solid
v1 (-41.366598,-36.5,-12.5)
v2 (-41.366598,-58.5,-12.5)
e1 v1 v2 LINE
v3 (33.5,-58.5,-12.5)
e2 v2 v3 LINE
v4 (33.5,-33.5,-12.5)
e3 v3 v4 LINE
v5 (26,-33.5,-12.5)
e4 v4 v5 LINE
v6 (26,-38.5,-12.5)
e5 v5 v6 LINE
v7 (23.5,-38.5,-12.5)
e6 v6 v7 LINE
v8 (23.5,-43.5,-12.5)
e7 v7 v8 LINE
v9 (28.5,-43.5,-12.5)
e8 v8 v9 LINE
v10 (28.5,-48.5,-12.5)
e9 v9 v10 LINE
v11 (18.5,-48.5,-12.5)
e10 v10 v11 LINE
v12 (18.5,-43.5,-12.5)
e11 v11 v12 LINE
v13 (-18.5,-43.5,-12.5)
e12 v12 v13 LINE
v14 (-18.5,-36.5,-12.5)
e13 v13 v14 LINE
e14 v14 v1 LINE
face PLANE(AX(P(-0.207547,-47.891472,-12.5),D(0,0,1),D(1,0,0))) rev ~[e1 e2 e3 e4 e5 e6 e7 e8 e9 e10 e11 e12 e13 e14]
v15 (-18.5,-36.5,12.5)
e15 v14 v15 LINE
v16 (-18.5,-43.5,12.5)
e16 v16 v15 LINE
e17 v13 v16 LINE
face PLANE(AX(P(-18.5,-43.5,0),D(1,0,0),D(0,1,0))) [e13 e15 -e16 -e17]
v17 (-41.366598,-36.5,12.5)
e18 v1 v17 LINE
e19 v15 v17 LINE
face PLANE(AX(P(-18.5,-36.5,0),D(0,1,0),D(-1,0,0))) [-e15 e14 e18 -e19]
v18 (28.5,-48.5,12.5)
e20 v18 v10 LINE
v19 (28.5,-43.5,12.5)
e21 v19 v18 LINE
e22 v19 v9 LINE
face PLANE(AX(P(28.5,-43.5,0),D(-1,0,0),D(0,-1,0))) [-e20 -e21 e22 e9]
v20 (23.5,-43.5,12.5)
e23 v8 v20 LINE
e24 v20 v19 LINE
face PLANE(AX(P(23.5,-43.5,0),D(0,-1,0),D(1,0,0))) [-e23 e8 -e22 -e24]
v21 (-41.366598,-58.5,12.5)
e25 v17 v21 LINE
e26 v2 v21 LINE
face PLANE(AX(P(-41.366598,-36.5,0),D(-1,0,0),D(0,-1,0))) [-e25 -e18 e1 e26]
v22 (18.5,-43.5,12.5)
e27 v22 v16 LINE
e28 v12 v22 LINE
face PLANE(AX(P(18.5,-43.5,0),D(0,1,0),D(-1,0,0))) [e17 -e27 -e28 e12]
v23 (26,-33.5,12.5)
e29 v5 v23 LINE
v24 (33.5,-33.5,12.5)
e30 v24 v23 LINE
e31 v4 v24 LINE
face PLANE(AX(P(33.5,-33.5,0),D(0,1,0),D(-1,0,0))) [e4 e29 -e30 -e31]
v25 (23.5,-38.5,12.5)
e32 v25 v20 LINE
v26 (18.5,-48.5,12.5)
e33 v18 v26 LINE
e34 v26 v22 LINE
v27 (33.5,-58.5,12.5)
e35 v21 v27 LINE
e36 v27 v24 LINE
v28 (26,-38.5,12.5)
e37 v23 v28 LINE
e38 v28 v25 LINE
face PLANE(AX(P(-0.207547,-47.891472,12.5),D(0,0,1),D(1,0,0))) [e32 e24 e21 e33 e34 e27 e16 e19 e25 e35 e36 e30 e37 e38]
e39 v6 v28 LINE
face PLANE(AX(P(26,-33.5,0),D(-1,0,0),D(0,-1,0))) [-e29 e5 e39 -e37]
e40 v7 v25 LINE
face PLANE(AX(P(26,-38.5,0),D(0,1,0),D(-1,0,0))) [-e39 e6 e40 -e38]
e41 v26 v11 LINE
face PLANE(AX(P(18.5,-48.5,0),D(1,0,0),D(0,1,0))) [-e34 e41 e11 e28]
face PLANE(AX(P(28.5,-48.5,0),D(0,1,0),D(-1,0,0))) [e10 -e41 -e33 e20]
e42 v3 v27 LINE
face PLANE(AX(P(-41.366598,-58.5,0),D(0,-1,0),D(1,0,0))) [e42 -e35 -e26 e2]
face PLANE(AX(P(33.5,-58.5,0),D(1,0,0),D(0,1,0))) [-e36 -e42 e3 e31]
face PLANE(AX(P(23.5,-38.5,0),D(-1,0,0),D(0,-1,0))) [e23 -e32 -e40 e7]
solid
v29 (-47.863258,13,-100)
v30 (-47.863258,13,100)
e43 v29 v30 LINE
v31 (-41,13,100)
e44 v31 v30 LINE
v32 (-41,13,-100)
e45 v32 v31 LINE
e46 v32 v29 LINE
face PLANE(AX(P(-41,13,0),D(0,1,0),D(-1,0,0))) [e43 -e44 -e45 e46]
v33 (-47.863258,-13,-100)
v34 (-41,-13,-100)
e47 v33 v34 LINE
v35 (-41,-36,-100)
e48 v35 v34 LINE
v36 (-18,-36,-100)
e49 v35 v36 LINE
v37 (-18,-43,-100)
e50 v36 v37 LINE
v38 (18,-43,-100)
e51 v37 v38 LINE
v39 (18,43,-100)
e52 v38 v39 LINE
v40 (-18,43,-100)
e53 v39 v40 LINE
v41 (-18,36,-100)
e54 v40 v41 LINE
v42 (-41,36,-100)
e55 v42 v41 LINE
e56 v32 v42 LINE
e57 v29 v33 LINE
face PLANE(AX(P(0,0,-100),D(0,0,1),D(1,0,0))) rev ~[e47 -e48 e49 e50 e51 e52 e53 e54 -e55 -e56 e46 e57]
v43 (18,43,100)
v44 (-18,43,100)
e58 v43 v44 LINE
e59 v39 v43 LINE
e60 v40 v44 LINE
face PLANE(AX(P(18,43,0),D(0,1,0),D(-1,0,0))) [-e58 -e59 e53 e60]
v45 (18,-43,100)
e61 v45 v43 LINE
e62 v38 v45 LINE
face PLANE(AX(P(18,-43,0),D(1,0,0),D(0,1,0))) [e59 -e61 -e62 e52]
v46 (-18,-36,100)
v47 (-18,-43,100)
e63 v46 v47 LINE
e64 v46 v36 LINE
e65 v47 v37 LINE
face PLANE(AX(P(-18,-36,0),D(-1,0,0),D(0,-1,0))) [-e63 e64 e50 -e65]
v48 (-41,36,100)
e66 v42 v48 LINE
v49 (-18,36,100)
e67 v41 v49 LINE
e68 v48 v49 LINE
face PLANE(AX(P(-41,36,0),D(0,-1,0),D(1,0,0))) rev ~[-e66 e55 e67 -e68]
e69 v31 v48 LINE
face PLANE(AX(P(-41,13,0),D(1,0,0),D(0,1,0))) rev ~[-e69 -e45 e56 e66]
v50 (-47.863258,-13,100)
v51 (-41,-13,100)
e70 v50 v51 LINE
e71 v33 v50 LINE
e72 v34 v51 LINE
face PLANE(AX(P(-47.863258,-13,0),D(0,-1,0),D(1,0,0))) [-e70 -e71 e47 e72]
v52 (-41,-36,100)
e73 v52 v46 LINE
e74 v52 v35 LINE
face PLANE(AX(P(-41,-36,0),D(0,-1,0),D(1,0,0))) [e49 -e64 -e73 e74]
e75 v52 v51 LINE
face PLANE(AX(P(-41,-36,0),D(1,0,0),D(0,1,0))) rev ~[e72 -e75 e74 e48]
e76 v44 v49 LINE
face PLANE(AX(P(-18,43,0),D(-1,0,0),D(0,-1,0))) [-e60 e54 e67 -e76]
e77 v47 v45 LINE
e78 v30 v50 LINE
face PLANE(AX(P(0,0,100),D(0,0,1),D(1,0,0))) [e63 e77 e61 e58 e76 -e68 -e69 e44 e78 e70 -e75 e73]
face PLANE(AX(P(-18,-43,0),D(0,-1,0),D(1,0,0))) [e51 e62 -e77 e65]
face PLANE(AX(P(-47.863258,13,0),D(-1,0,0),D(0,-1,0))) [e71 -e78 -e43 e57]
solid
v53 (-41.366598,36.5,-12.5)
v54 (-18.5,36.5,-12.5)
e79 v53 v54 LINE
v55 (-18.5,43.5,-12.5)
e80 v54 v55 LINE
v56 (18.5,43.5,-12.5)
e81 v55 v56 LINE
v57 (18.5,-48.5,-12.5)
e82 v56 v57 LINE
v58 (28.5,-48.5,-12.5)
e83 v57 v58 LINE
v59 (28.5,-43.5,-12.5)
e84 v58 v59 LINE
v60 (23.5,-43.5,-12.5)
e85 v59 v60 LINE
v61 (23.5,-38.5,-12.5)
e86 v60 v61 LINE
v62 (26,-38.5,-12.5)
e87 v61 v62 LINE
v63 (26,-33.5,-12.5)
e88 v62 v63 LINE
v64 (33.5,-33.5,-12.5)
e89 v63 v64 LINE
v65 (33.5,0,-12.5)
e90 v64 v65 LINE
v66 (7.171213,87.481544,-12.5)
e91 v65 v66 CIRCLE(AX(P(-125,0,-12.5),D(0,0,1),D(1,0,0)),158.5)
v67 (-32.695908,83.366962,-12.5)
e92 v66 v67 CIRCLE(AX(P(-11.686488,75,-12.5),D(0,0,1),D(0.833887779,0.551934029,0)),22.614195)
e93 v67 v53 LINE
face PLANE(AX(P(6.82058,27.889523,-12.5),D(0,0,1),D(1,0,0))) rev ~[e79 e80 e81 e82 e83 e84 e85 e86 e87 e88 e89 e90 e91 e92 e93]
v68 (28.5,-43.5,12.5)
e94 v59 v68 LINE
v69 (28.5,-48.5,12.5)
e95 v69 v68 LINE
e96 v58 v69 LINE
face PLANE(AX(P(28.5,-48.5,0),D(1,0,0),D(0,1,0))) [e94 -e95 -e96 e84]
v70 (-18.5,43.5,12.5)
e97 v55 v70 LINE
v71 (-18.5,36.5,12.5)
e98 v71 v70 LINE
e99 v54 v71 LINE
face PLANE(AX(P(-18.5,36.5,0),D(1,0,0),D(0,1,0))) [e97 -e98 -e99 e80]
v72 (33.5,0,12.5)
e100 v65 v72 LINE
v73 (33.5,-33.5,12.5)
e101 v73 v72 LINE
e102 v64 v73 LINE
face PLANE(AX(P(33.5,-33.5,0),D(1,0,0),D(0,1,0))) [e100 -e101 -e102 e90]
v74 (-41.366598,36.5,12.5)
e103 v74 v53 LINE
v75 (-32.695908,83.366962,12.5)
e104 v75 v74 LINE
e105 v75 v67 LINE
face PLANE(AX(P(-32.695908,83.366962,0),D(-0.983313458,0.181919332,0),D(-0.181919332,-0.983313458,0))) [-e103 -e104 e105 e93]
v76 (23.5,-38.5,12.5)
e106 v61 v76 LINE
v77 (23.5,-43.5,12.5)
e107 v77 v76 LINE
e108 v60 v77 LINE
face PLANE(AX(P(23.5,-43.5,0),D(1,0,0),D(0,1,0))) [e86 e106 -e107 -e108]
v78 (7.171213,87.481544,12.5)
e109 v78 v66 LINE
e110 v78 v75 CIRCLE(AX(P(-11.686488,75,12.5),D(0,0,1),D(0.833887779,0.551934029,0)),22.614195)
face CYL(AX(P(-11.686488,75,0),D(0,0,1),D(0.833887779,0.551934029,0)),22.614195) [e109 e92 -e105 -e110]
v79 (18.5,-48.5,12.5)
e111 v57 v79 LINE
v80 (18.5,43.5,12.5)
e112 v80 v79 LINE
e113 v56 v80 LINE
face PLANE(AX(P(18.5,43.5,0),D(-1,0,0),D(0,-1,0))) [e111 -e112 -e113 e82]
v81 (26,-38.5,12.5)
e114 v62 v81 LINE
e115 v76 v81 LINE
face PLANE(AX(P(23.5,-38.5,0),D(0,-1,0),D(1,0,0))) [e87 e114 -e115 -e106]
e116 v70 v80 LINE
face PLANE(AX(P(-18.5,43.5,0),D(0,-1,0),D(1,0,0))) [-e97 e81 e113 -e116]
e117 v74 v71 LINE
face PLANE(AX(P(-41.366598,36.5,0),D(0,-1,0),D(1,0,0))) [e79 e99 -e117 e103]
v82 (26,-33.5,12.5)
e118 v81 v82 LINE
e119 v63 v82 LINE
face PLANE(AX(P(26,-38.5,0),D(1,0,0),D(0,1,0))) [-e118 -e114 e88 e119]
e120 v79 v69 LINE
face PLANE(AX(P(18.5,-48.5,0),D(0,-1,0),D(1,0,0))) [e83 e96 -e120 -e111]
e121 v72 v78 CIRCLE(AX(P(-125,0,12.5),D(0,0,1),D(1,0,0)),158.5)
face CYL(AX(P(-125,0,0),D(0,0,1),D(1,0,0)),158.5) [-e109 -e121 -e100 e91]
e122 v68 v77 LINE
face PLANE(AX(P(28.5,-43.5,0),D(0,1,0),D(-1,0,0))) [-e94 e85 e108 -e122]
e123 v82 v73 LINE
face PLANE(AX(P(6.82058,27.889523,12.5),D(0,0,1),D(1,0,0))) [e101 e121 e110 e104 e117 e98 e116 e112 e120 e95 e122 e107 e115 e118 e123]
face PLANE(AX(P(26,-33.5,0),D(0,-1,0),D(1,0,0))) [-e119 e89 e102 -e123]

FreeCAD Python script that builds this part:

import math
import FreeCAD as App
import Part
import Sketcher

V = App.Vector
Q = App.Units.Quantity


def add_polygon(sketch, points):
    """Adds a closed chain of lines whose ends are joined by coincident constraints."""
    first, n = sketch.GeometryCount, len(points)
    for a, b in zip(points, points[1:] + points[:1]):
        sketch.addGeometry(Part.LineSegment(App.Vector(*a, 0), App.Vector(*b, 0)), False)
    for i in range(n):
        sketch.addConstraint(Sketcher.Constraint("Coincident", first + i, 2, first + (i + 1) % n, 1))

doc = App.newDocument("Part")
body = doc.addObject("PartDesign::Body", "Body")

# Sketch on XY plane
sketch1 = body.newObject("Sketcher::SketchObject", "Sketch")
sketch1.AttachmentSupport = (doc.getObject("XY_Plane"), [""])
sketch1.MapMode = "FlatFace"
add_polygon(sketch1, [(-18, -43), (18, -43), (18, 43), (-18, 43), (-18, 36), (-41, 36), (-41, 13), (-48, 13), (-48, -13), (-41, -13), (-41, -36), (-18, -36)])  # lines 0-11
sketch1.addConstraint(Sketcher.Constraint("Horizontal", 0))
sketch1.addConstraint(Sketcher.Constraint("Vertical", 1))
sketch1.addConstraint(Sketcher.Constraint("Horizontal", 2))
sketch1.addConstraint(Sketcher.Constraint("Vertical", 3))
sketch1.addConstraint(Sketcher.Constraint("Horizontal", 4))
sketch1.addConstraint(Sketcher.Constraint("Vertical", 5))
sketch1.addConstraint(Sketcher.Constraint("Horizontal", 6))
sketch1.addConstraint(Sketcher.Constraint("Vertical", 7))
sketch1.addConstraint(Sketcher.Constraint("Horizontal", 8))
sketch1.addConstraint(Sketcher.Constraint("Vertical", 9))
sketch1.addConstraint(Sketcher.Constraint("Horizontal", 10))
sketch1.addConstraint(Sketcher.Constraint("Vertical", 11))
sketch1.addConstraint(Sketcher.Constraint("Symmetric", 0, 2, 2, 2, -1, 1))
sketch1.addConstraint(Sketcher.Constraint("Symmetric", 5, 2, 8, 2, -1))
sketch1.addConstraint(Sketcher.Constraint("Symmetric", 3, 2, 10, 2, -1))
sketch1.addConstraint(Sketcher.Constraint("Equal", 10, 5))
sketch1.addConstraint(Sketcher.Constraint("DistanceX", 0, 1, 0, 2, Q("36 mm")))
sketch1.addConstraint(Sketcher.Constraint("DistanceX", 4, 2, 4, 1, Q("23 mm")))
sketch1.addConstraint(Sketcher.Constraint("DistanceY", 1, 1, 1, 2, Q("86 mm")))
sketch1.addConstraint(Sketcher.Constraint("DistanceY", 3, 2, 3, 1, Q("7 mm")))
sketch1.addConstraint(Sketcher.Constraint("DistanceX", 6, 2, 6, 1, Q("6.863258 mm")))
pad1 = body.newObject("PartDesign::Pad", "Pad")
pad1.Profile = sketch1
pad1.Length = 200
pad1.Midplane = True
body2 = doc.addObject("PartDesign::Body", "Body001")

# Sketch on XY plane
sketch2 = body2.newObject("Sketcher::SketchObject", "Sketch001")
sketch2.AttachmentSupport = (doc.getObject("XY_Plane001"), [""])
sketch2.MapMode = "FlatFace"
add_polygon(sketch2, [(18.5, -48.5), (18.5, -43.5), (-18.5, -43.5), (-18.5, -36.5), (-41.4, -36.5), (-41.4, -58.5), (33.5, -58.5), (33.5, -33.5), (26, -33.5), (26, -38.5), (23.5, -38.5), (23.5, -43.5), (28.5, -43.5), (28.5, -48.5)])  # lines 0-13
sketch2.addConstraint(Sketcher.Constraint("Vertical", 0))
sketch2.addConstraint(Sketcher.Constraint("Horizontal", 1))
sketch2.addConstraint(Sketcher.Constraint("Vertical", 2))
sketch2.addConstraint(Sketcher.Constraint("Horizontal", 3))
sketch2.addConstraint(Sketcher.Constraint("Vertical", 4))
sketch2.addConstraint(Sketcher.Constraint("Horizontal", 5))
sketch2.addConstraint(Sketcher.Constraint("Vertical", 6))
sketch2.addConstraint(Sketcher.Constraint("Horizontal", 7))
sketch2.addConstraint(Sketcher.Constraint("Vertical", 8))
sketch2.addConstraint(Sketcher.Constraint("Horizontal", 9))
sketch2.addConstraint(Sketcher.Constraint("Vertical", 10))
sketch2.addConstraint(Sketcher.Constraint("Horizontal", 11))
sketch2.addConstraint(Sketcher.Constraint("Vertical", 12))
sketch2.addConstraint(Sketcher.Constraint("Horizontal", 13))
sketch2.addConstraint(Sketcher.Constraint("Horizontal", 1, 2, 10, 2))
sketch2.addConstraint(Sketcher.Constraint("Equal", 11, 0))
sketch2.addConstraint(Sketcher.Constraint("Equal", 0, 8))
sketch2.addConstraint(Sketcher.Constraint("Equal", 8, 10))
sketch2.addConstraint(Sketcher.Constraint("DistanceX", 1, 2, 1, 1, Q("37 mm")))
sketch2.addConstraint(Sketcher.Constraint("DistanceX", 11, 1, 11, 2, Q("5 mm")))
sketch2.addConstraint(Sketcher.Constraint("DistanceX", 13, 2, 13, 1, Q("10 mm")))
sketch2.addConstraint(Sketcher.Constraint("DistanceY", 2, 1, 2, 2, Q("7 mm")))
sketch2.addConstraint(Sketcher.Constraint("DistanceY", 4, 2, 4, 1, Q("22 mm")))
sketch2.addConstraint(Sketcher.Constraint("DistanceX", 7, 2, 7, 1, Q("7.5 mm")))
sketch2.addConstraint(Sketcher.Constraint("DistanceX", 9, 2, 9, 1, Q("2.5 mm")))
sketch2.addConstraint(Sketcher.Constraint("DistanceX", -1, 1, 7, 2, Q("26 mm")))
sketch2.addConstraint(Sketcher.Constraint("DistanceY", 0, 2, -1, 1, Q("43.5 mm")))
sketch2.addConstraint(Sketcher.Constraint("DistanceX", 3, 2, 3, 1, Q("22.866598 mm")))
pad2 = body2.newObject("PartDesign::Pad", "Pad001")
pad2.Profile = sketch2
pad2.Length = 25
pad2.Midplane = True
body3 = doc.addObject("PartDesign::Body", "Body002")

# Sketch on XY plane
sketch3 = body3.newObject("Sketcher::SketchObject", "Sketch002")
sketch3.AttachmentSupport = (doc.getObject("XY_Plane002"), [""])
sketch3.MapMode = "FlatFace"
sketch3.addGeometry(Part.LineSegment(V(-41.4, 36.5, 0), V(-18.5, 36.5, 0)), False)
sketch3.addGeometry(Part.LineSegment(V(-18.5, 36.5, 0), V(-18.5, 43.5, 0)), False)
sketch3.addGeometry(Part.LineSegment(V(-18.5, 43.5, 0), V(18.5, 43.5, 0)), False)
sketch3.addGeometry(Part.LineSegment(V(18.5, 43.5, 0), V(18.5, -48.5, 0)), False)
sketch3.addGeometry(Part.LineSegment(V(18.5, -48.5, 0), V(28.5, -48.5, 0)), False)
sketch3.addGeometry(Part.LineSegment(V(28.5, -48.5, 0), V(28.5, -43.5, 0)), False)
sketch3.addGeometry(Part.LineSegment(V(28.5, -43.5, 0), V(23.5, -43.5, 0)), False)
sketch3.addGeometry(Part.LineSegment(V(23.5, -43.5, 0), V(23.5, -38.5, 0)), False)
sketch3.addGeometry(Part.LineSegment(V(23.5, -38.5, 0), V(26, -38.5, 0)), False)
sketch3.addGeometry(Part.LineSegment(V(26, -38.5, 0), V(26, -33.5, 0)), False)
sketch3.addGeometry(Part.LineSegment(V(26, -33.5, 0), V(33.5, -33.5, 0)), False)
sketch3.addGeometry(Part.LineSegment(V(33.5, -33.5, 0), V(33.5, 0, 0)), False)
sketch3.addGeometry(Part.ArcOfCircle(Part.Circle(V(-125, 0, 0), V(0, 0, 1), 158.5), math.radians(0), math.radians(33)), False)
sketch3.addGeometry(Part.ArcOfCircle(Part.Circle(V(-11.7, 75, 0), V(0, 0, 1), 22.6), math.radians(33), math.radians(158)), False)
sketch3.addGeometry(Part.LineSegment(V(-32.7, 83.4, 0), V(-41.4, 36.5, 0)), False)
sketch3.addConstraint(Sketcher.Constraint("Coincident", 0, 2, 1, 1))
sketch3.addConstraint(Sketcher.Constraint("Coincident", 1, 2, 2, 1))
sketch3.addConstraint(Sketcher.Constraint("Coincident", 2, 2, 3, 1))
sketch3.addConstraint(Sketcher.Constraint("Coincident", 3, 2, 4, 1))
sketch3.addConstraint(Sketcher.Constraint("Coincident", 4, 2, 5, 1))
sketch3.addConstraint(Sketcher.Constraint("Coincident", 5, 2, 6, 1))
sketch3.addConstraint(Sketcher.Constraint("Coincident", 6, 2, 7, 1))
sketch3.addConstraint(Sketcher.Constraint("Coincident", 7, 2, 8, 1))
sketch3.addConstraint(Sketcher.Constraint("Coincident", 8, 2, 9, 1))
sketch3.addConstraint(Sketcher.Constraint("Coincident", 9, 2, 10, 1))
sketch3.addConstraint(Sketcher.Constraint("Coincident", 10, 2, 11, 1))
sketch3.addConstraint(Sketcher.Constraint("Tangent", 11, 2, 12, 1))
sketch3.addConstraint(Sketcher.Constraint("Tangent", 12, 2, 13, 1))
sketch3.addConstraint(Sketcher.Constraint("Coincident", 13, 2, 14, 1))
sketch3.addConstraint(Sketcher.Constraint("Coincident", 14, 2, 0, 1))
sketch3.addConstraint(Sketcher.Constraint("Horizontal", 0))
sketch3.addConstraint(Sketcher.Constraint("Vertical", 1))
sketch3.addConstraint(Sketcher.Constraint("Horizontal", 2))
sketch3.addConstraint(Sketcher.Constraint("Vertical", 3))
sketch3.addConstraint(Sketcher.Constraint("Horizontal", 4))
sketch3.addConstraint(Sketcher.Constraint("Vertical", 5))
sketch3.addConstraint(Sketcher.Constraint("Horizontal", 6))
sketch3.addConstraint(Sketcher.Constraint("Vertical", 7))
sketch3.addConstraint(Sketcher.Constraint("Horizontal", 8))
sketch3.addConstraint(Sketcher.Constraint("Vertical", 9))
sketch3.addConstraint(Sketcher.Constraint("Horizontal", 10))
sketch3.addConstraint(Sketcher.Constraint("Vertical", 11))
sketch3.addConstraint(Sketcher.Constraint("PointOnObject", 12, 3, -1))
sketch3.addConstraint(Sketcher.Constraint("Equal", 6, 5))
sketch3.addConstraint(Sketcher.Constraint("Equal", 5, 7))
sketch3.addConstraint(Sketcher.Constraint("Equal", 7, 9))
sketch3.addConstraint(Sketcher.Constraint("Radius", 12, Q("158.5 mm")))
sketch3.addConstraint(Sketcher.Constraint("DistanceX", 2, 1, 2, 2, Q("37 mm")))
sketch3.addConstraint(Sketcher.Constraint("DistanceX", 4, 1, 4, 2, Q("10 mm")))
sketch3.addConstraint(Sketcher.Constraint("DistanceX", 6, 2, 6, 1, Q("5 mm")))
sketch3.addConstraint(Sketcher.Constraint("DistanceY", 1, 1, 1, 2, Q("7 mm")))
sketch3.addConstraint(Sketcher.Constraint("DistanceY", 3, 2, 3, 1, Q("92 mm")))
sketch3.addConstraint(Sketcher.Constraint("DistanceX", 8, 1, 8, 2, Q("2.5 mm")))
sketch3.addConstraint(Sketcher.Constraint("DistanceX", 10, 1, 10, 2, Q("7.5 mm")))
sketch3.addConstraint(Sketcher.Constraint("DistanceY", 11, 1, 11, 2, Q("33.5 mm")))
sketch3.addConstraint(Sketcher.Constraint("DistanceX", 12, 3, -1, 1, Q("125 mm")))
sketch3.addConstraint(Sketcher.Constraint("DistanceY", -1, 1, 13, 3, Q("75 mm")))
sketch3.addConstraint(Sketcher.Constraint("DistanceX", 0, 1, 0, 2, Q("22.866598 mm")))
sketch3.addConstraint(Sketcher.Constraint("Radius", 13, Q("22.614195 mm")))
sketch3.addConstraint(Sketcher.Constraint("Distance", 14, Q("47.662281 mm")))
pad3 = body3.newObject("PartDesign::Pad", "Pad002")
pad3.Profile = sketch3
pad3.Length = 25
pad3.Midplane = True

doc.recompute()
